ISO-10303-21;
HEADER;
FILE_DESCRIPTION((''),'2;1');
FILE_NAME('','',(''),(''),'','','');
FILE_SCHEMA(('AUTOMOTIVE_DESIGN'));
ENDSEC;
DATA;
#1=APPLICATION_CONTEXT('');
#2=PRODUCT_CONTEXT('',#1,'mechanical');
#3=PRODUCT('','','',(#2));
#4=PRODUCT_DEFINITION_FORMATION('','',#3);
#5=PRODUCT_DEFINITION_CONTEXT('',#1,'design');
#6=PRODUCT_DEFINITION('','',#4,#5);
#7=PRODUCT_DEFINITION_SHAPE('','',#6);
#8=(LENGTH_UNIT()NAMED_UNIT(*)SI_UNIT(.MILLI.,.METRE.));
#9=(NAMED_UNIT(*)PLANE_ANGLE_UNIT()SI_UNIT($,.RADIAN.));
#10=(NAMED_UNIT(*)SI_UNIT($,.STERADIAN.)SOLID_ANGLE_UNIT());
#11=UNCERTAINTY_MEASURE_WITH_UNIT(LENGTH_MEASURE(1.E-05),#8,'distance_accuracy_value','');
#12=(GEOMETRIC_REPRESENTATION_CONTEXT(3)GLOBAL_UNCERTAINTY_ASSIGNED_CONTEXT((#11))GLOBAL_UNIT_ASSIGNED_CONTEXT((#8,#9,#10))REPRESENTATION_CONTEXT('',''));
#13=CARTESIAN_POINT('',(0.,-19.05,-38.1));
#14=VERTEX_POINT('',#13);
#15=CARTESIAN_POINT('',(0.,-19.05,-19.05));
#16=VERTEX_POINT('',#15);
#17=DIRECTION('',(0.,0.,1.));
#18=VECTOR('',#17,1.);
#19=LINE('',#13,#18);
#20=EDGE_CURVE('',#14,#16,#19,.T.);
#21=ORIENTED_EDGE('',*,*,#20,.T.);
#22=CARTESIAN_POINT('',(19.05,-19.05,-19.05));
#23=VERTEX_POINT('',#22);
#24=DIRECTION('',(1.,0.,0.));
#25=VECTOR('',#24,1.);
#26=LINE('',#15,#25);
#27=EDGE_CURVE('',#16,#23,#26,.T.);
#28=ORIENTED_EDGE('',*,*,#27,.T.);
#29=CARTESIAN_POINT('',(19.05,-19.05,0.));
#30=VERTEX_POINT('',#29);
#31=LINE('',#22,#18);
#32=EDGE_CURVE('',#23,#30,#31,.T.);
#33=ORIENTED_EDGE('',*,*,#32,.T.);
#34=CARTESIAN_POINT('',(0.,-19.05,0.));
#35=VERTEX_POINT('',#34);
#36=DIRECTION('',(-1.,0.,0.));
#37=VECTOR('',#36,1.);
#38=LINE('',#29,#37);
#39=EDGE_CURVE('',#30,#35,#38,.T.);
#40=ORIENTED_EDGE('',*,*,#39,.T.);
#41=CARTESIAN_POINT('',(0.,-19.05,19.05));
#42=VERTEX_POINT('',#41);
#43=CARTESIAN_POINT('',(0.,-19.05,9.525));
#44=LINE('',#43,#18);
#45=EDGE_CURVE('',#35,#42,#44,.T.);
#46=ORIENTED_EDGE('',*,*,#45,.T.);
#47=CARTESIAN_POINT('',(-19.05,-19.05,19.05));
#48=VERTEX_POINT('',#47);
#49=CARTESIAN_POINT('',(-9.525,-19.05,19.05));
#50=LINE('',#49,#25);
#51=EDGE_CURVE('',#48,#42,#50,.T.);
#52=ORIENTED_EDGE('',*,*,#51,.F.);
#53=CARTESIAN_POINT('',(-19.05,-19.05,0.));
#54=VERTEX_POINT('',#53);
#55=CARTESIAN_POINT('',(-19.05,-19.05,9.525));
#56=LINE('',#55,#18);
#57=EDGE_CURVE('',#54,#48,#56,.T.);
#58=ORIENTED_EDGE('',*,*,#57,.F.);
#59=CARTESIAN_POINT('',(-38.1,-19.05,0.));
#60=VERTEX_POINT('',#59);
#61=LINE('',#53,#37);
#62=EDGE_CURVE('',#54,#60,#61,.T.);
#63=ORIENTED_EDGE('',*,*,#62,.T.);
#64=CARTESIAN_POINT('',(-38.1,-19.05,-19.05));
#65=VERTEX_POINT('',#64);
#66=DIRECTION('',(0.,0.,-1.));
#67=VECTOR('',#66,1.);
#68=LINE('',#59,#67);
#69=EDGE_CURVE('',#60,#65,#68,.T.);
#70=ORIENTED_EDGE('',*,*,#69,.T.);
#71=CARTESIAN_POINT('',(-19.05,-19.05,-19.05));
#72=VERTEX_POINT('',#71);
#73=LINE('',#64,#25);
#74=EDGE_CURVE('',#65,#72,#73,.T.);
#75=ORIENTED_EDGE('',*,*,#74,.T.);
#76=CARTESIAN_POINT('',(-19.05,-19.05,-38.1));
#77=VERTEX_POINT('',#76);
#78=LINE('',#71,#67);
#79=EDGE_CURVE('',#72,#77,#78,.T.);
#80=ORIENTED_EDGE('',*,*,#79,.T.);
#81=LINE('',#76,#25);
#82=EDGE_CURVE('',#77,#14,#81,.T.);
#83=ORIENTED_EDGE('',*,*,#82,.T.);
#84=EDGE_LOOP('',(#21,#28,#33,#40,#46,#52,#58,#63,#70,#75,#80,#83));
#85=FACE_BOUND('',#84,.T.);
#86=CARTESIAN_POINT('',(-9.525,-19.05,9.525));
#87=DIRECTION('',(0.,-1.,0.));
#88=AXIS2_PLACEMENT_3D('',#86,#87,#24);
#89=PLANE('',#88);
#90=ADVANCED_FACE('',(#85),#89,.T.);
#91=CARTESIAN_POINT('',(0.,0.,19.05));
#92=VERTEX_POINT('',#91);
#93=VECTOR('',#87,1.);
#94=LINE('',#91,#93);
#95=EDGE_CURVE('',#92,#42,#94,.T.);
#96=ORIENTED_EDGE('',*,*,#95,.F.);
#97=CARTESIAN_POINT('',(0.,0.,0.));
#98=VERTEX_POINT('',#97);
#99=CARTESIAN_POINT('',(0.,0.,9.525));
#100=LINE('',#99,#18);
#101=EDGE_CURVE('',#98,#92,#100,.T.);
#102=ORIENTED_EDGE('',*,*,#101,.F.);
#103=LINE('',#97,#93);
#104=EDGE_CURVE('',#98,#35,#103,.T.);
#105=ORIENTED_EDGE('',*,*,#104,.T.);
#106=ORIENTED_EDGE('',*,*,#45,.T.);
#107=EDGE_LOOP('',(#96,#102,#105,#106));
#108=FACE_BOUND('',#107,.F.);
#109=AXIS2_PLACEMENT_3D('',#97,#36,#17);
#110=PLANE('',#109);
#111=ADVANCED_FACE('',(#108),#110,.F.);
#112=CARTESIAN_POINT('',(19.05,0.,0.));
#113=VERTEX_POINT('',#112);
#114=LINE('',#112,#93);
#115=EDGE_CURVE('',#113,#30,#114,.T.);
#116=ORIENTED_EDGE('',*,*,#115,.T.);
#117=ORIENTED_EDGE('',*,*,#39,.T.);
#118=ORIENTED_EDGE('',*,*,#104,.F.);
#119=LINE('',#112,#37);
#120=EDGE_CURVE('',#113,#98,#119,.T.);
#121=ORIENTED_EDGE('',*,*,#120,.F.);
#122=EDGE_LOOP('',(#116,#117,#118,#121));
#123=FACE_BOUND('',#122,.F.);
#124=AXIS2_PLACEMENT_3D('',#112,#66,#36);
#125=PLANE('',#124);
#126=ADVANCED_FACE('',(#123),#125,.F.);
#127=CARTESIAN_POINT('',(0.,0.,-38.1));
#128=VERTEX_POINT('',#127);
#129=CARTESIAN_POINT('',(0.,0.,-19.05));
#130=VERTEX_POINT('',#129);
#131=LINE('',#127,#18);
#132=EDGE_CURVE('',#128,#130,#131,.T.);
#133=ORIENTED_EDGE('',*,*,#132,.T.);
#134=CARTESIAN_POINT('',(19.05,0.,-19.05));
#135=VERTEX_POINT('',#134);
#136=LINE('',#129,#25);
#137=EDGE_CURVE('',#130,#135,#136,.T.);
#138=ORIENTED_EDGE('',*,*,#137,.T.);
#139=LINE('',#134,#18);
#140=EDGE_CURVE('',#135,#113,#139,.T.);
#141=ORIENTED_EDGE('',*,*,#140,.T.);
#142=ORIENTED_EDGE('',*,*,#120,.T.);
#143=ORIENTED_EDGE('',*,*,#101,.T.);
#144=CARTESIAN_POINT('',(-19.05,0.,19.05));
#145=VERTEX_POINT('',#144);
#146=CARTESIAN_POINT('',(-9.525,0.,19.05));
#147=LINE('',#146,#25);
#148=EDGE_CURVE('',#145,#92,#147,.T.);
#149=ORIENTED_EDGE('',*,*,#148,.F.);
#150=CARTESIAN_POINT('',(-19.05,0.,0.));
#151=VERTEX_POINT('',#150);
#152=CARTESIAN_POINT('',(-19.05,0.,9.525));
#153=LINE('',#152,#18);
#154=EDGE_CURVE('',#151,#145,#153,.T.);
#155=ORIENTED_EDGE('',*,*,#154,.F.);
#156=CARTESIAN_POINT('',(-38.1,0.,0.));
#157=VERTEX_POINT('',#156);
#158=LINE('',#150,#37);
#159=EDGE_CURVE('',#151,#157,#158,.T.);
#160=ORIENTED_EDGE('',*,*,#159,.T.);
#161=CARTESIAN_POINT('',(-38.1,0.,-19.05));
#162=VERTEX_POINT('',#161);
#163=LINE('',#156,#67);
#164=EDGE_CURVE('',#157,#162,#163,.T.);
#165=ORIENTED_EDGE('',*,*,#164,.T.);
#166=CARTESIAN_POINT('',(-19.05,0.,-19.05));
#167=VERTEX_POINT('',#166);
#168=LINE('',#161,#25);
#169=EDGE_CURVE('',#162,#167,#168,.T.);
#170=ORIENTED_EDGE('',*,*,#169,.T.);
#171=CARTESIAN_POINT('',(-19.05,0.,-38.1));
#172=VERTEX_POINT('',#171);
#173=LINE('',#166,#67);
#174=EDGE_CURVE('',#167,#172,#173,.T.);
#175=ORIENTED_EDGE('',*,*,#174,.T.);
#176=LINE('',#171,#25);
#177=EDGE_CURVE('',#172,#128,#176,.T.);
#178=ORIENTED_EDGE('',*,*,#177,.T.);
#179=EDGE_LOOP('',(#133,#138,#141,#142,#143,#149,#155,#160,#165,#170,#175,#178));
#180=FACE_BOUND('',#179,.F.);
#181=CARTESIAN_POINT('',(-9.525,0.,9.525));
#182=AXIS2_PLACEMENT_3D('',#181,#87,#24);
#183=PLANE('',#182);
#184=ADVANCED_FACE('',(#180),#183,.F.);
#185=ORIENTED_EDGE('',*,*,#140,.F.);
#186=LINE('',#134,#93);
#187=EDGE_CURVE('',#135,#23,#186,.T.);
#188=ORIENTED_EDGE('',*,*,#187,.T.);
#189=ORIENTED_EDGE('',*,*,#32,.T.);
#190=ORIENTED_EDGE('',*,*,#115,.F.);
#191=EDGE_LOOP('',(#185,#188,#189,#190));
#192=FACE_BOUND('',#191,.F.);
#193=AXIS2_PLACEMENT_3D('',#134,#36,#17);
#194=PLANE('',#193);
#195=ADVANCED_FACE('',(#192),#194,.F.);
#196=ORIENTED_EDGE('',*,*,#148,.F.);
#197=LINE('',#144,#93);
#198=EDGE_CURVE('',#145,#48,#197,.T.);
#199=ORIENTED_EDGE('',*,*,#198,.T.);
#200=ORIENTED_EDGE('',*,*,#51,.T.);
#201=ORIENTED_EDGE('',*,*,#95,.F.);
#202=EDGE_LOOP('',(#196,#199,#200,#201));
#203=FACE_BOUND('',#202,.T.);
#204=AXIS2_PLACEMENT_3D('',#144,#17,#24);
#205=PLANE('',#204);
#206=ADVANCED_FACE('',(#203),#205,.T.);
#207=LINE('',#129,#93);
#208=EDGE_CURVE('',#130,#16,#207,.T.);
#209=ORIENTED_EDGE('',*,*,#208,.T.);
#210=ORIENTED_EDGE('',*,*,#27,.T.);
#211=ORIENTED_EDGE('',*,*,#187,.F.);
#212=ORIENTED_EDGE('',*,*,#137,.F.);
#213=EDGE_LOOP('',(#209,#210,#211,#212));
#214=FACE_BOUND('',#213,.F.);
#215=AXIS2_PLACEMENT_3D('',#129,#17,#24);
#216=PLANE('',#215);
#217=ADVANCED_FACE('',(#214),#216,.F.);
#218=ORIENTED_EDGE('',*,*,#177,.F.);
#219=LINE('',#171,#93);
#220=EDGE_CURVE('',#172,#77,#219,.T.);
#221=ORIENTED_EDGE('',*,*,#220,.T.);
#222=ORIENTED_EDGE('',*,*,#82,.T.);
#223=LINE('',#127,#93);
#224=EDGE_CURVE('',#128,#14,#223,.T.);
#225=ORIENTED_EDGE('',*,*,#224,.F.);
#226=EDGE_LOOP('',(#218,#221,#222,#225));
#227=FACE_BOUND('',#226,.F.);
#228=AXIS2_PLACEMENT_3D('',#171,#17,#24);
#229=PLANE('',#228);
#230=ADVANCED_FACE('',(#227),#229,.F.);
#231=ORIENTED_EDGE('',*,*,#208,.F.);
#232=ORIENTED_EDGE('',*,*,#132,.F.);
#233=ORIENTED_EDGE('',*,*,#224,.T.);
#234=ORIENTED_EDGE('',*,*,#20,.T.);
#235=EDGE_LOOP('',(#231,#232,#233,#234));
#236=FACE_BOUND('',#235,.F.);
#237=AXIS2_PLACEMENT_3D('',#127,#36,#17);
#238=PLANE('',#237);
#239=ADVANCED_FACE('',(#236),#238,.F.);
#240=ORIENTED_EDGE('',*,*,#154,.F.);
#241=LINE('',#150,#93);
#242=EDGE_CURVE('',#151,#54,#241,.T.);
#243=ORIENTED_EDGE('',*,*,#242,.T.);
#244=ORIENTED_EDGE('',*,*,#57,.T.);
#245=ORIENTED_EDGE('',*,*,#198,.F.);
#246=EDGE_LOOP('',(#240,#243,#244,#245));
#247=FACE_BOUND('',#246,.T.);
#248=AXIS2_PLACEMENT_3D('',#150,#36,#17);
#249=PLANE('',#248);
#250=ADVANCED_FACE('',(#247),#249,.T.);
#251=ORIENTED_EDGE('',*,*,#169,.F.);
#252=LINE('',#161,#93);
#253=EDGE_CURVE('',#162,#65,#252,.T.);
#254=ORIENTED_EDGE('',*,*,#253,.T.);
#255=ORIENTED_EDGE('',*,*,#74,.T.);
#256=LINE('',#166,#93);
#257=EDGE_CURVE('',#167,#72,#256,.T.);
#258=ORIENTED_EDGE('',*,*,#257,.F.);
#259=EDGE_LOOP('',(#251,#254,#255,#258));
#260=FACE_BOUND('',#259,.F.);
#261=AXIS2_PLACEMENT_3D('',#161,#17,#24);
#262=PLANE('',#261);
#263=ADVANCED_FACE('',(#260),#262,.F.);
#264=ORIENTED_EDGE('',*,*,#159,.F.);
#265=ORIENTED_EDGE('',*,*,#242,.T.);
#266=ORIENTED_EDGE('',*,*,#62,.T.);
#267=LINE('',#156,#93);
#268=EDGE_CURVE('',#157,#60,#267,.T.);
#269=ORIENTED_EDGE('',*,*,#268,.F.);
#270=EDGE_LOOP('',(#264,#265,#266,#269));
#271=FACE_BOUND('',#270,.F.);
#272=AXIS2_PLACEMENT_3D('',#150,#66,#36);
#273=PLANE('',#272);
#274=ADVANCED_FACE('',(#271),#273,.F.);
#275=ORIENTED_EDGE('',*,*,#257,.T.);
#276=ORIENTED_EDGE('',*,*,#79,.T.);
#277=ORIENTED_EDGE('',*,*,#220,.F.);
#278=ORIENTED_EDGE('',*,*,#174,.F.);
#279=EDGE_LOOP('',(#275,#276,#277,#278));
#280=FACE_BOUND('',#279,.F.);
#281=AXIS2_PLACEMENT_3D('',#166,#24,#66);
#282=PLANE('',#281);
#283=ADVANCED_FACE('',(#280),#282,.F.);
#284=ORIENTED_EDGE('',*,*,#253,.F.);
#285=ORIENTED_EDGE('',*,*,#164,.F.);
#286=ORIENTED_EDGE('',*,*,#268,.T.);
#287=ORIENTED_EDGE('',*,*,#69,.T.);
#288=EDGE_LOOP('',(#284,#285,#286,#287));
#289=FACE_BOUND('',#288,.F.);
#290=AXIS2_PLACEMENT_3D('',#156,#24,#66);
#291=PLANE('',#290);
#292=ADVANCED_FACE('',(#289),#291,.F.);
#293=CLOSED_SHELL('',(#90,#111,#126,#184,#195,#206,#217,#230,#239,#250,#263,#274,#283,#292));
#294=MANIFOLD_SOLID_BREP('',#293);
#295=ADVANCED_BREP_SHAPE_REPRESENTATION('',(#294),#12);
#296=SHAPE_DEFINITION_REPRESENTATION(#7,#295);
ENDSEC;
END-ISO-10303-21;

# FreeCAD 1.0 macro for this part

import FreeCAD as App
import Part
import Sketcher
Q = App.Units.Quantity


def add_polygon(sketch, points):
    """Adds a closed chain of lines whose ends are joined by coincident constraints."""
    first, n = sketch.GeometryCount, len(points)
    for a, b in zip(points, points[1:] + points[:1]):
        sketch.addGeometry(Part.LineSegment(App.Vector(*a, 0), App.Vector(*b, 0)), False)
    for i in range(n):
        sketch.addConstraint(Sketcher.Constraint("Coincident", first + i, 2, first + (i + 1) % n, 1))

doc = App.newDocument("Part")
body = doc.addObject("PartDesign::Body", "Body")

# Sketch on XZ plane
sketch1 = doc.addObject("Sketcher::SketchObject", "Sketch")
body.addObject(sketch1)
sketch1.AttachmentSupport = (doc.XZ_Plane, [""])
sketch1.MapMode = "FlatFace"
add_polygon(sketch1, [(-19.05, 19.05), (-19.05, 0), (-38.1, 0), (-38.1, -19.05), (-19.05, -19.05), (-19.05, -38.1), (0, -38.1), (0, -19.05), (19.05, -19.05), (19.05, 0), (0, 0), (0, 19.05)])  # lines 0-11
sketch1.addConstraint([
    Sketcher.Constraint("Vertical", 0),
    Sketcher.Constraint("Horizontal", 1),
    Sketcher.Constraint("Vertical", 2),
    Sketcher.Constraint("Horizontal", 3),
    Sketcher.Constraint("Vertical", 4),
    Sketcher.Constraint("Horizontal", 5),
    Sketcher.Constraint("Vertical", 6),
    Sketcher.Constraint("Horizontal", 7),
    Sketcher.Constraint("Vertical", 8),
    Sketcher.Constraint("Horizontal", 9),
    Sketcher.Constraint("Vertical", 10),
    Sketcher.Constraint("Horizontal", 11),
    Sketcher.Constraint("Coincident", 9, 2, -1, 1),
    Sketcher.Constraint("Symmetric", 0, 2, 8, 2, -1, 1),
    Sketcher.Constraint("Symmetric", 6, 2, 10, 2, -1, 1),
    Sketcher.Constraint("Symmetric", 3, 2, 7, 2, -2),
    Sketcher.Constraint("Equal", 3, 5),
    Sketcher.Constraint("Equal", 11, 0),
    Sketcher.Constraint("Equal", 2, 4),
    Sketcher.Constraint("DistanceX", 1, 2, 1, 1, Q("0.75 in")),
])
pad1 = doc.addObject("PartDesign::Pad", "Pad")
body.addObject(pad1)
pad1.Profile = sketch1
pad1.Length = Q("0.75 in")

doc.recompute()
